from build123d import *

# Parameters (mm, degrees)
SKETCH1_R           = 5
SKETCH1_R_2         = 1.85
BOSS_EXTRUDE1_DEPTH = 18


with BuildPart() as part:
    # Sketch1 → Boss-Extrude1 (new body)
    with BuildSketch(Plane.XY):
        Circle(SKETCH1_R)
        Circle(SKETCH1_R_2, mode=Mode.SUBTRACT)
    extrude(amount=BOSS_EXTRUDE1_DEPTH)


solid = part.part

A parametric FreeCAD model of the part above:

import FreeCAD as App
import Part
import Sketcher

V = App.Vector

doc = App.newDocument("Part")
body = doc.addObject("PartDesign::Body", "Body")

sketch1 = body.newObject("Sketcher::SketchObject", "Sketch")
sketch1.AttachmentSupport = (doc.getObject("XY_Plane"), [""])
sketch1.MapMode = "FlatFace"
sketch1.addGeometry([
    Part.Circle(V(0, 0, 0), V(0, 0, 1), 5),
    Part.Circle(V(0, 0, 0), V(0, 0, 1), 1.9),
], False)
sketch1.addConstraint([
    Sketcher.Constraint("Coincident", 0, 3, -1, 1),
    Sketcher.Constraint("Coincident", 1, 3, -1, 1),
    Sketcher.Constraint("Diameter", 0, 10.0),
    Sketcher.Constraint("Diameter", 1, 3.7),
])
pad1 = body.newObject("PartDesign::Pad", "Pad")
pad1.Profile = sketch1
pad1.Length = 18

doc.recompute()
